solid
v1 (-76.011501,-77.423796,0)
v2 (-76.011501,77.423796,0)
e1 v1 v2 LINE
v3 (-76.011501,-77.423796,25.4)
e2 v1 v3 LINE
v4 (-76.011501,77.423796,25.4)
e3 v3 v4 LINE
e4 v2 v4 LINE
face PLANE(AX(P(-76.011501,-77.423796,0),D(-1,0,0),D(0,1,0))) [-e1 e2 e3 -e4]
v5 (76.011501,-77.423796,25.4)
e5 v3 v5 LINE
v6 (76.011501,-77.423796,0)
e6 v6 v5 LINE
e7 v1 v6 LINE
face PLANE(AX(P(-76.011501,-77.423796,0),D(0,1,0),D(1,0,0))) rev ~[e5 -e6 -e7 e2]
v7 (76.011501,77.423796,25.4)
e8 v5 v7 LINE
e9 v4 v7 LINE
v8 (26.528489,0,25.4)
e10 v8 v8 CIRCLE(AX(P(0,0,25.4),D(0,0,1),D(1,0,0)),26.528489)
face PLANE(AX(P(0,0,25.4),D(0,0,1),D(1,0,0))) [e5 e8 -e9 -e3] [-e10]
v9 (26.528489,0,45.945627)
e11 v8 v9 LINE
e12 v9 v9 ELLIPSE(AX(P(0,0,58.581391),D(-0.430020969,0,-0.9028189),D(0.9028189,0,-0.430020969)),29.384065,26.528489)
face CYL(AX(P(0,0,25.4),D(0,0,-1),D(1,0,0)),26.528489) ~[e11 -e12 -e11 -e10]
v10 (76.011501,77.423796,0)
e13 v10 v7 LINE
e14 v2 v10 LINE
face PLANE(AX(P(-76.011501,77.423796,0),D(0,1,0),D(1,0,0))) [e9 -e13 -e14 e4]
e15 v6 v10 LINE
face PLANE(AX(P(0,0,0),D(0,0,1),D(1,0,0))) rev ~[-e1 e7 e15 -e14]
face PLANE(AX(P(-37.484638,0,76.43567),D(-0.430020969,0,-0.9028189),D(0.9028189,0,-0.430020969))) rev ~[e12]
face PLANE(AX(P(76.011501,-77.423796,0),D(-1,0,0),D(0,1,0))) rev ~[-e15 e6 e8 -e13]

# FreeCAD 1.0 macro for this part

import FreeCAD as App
import Part
import Sketcher

V = App.Vector
Q = App.Units.Quantity


def add_polygon(sketch, points):
    """Adds a closed chain of lines whose ends are joined by coincident constraints."""
    first, n = sketch.GeometryCount, len(points)
    for a, b in zip(points, points[1:] + points[:1]):
        sketch.addGeometry(Part.LineSegment(App.Vector(*a, 0), App.Vector(*b, 0)), False)
    for i in range(n):
        sketch.addConstraint(Sketcher.Constraint("Coincident", first + i, 2, first + (i + 1) % n, 1))

doc = App.newDocument("Part")
body = doc.addObject("PartDesign::Body", "Body")

sketch1 = body.newObject("Sketcher::SketchObject", "Sketch")
sketch1.AttachmentSupport = (doc.getObject("XY_Plane"), [""])
sketch1.MapMode = "FlatFace"
add_polygon(sketch1, [(-76, 77), (-76, -77), (76, -77), (76, 77)])
sketch1.addConstraint([
    Sketcher.Constraint("Vertical", 0),
    Sketcher.Constraint("Horizontal", 1),
    Sketcher.Constraint("Vertical", 2),
    Sketcher.Constraint("Horizontal", 3),
    Sketcher.Constraint("Symmetric", 0, 2, 2, 2, -1, 1),
    Sketcher.Constraint("DistanceX", 1, 1, 1, 2, Q("152.023002 mm")),
    Sketcher.Constraint("DistanceY", 0, 2, 0, 1, Q("154.847592 mm")),
])
pad1 = body.newObject("PartDesign::Pad", "Pad")
pad1.Profile = sketch1
pad1.Length = Q("1 in")

sketch2 = body.newObject("Sketcher::SketchObject", "Sketch001")
sketch2.AttachmentSupport = (doc.getObject("XY_Plane"), [""])
sketch2.MapMode = "FlatFace"
sketch2.AttachmentOffset = App.Placement(V(0, 0, 1 * 25.4), App.Rotation())
sketch2.addGeometry(Part.Circle(V(0, 0, 0), V(0, 0, 1), 27), False)
sketch2.addConstraint([
    Sketcher.Constraint("Coincident", 0, 3, -1, 1),
    Sketcher.Constraint("Diameter", 0, Q("53.056978 mm")),
])
pad2 = body.newObject("PartDesign::Pad", "Pad001")
pad2.Profile = sketch2
pad2.Length = Q("2 in")

sketch3 = body.newObject("Sketcher::SketchObject", "Sketch002")
sketch3.AttachmentSupport = (doc.getObject("XZ_Plane"), [""])
sketch3.MapMode = "FlatFace"
add_polygon(sketch3, [(36, 76), (-37, 76), (36, 41)])
sketch3.addConstraint([
    Sketcher.Constraint("Horizontal", 0),
    Sketcher.Constraint("Vertical", 2),
    Sketcher.Constraint("DistanceX", 0, 2, 0, 1, Q("73.502887 mm")),
    Sketcher.Constraint("DistanceY", 2, 1, 2, 2, Q("35.010103 mm")),
    Sketcher.Constraint("DistanceY", -1, 1, 0, 2, Q("76.43567 mm")),
    Sketcher.Constraint("DistanceX", -1, 1, 1, 2, Q("36.018249 mm")),
])
pocket1 = body.newObject("PartDesign::Pocket", "Pocket")
pocket1.Profile = sketch3
pocket1.Length = Q("20 in")
pocket1.Midplane = True

doc.recompute()
